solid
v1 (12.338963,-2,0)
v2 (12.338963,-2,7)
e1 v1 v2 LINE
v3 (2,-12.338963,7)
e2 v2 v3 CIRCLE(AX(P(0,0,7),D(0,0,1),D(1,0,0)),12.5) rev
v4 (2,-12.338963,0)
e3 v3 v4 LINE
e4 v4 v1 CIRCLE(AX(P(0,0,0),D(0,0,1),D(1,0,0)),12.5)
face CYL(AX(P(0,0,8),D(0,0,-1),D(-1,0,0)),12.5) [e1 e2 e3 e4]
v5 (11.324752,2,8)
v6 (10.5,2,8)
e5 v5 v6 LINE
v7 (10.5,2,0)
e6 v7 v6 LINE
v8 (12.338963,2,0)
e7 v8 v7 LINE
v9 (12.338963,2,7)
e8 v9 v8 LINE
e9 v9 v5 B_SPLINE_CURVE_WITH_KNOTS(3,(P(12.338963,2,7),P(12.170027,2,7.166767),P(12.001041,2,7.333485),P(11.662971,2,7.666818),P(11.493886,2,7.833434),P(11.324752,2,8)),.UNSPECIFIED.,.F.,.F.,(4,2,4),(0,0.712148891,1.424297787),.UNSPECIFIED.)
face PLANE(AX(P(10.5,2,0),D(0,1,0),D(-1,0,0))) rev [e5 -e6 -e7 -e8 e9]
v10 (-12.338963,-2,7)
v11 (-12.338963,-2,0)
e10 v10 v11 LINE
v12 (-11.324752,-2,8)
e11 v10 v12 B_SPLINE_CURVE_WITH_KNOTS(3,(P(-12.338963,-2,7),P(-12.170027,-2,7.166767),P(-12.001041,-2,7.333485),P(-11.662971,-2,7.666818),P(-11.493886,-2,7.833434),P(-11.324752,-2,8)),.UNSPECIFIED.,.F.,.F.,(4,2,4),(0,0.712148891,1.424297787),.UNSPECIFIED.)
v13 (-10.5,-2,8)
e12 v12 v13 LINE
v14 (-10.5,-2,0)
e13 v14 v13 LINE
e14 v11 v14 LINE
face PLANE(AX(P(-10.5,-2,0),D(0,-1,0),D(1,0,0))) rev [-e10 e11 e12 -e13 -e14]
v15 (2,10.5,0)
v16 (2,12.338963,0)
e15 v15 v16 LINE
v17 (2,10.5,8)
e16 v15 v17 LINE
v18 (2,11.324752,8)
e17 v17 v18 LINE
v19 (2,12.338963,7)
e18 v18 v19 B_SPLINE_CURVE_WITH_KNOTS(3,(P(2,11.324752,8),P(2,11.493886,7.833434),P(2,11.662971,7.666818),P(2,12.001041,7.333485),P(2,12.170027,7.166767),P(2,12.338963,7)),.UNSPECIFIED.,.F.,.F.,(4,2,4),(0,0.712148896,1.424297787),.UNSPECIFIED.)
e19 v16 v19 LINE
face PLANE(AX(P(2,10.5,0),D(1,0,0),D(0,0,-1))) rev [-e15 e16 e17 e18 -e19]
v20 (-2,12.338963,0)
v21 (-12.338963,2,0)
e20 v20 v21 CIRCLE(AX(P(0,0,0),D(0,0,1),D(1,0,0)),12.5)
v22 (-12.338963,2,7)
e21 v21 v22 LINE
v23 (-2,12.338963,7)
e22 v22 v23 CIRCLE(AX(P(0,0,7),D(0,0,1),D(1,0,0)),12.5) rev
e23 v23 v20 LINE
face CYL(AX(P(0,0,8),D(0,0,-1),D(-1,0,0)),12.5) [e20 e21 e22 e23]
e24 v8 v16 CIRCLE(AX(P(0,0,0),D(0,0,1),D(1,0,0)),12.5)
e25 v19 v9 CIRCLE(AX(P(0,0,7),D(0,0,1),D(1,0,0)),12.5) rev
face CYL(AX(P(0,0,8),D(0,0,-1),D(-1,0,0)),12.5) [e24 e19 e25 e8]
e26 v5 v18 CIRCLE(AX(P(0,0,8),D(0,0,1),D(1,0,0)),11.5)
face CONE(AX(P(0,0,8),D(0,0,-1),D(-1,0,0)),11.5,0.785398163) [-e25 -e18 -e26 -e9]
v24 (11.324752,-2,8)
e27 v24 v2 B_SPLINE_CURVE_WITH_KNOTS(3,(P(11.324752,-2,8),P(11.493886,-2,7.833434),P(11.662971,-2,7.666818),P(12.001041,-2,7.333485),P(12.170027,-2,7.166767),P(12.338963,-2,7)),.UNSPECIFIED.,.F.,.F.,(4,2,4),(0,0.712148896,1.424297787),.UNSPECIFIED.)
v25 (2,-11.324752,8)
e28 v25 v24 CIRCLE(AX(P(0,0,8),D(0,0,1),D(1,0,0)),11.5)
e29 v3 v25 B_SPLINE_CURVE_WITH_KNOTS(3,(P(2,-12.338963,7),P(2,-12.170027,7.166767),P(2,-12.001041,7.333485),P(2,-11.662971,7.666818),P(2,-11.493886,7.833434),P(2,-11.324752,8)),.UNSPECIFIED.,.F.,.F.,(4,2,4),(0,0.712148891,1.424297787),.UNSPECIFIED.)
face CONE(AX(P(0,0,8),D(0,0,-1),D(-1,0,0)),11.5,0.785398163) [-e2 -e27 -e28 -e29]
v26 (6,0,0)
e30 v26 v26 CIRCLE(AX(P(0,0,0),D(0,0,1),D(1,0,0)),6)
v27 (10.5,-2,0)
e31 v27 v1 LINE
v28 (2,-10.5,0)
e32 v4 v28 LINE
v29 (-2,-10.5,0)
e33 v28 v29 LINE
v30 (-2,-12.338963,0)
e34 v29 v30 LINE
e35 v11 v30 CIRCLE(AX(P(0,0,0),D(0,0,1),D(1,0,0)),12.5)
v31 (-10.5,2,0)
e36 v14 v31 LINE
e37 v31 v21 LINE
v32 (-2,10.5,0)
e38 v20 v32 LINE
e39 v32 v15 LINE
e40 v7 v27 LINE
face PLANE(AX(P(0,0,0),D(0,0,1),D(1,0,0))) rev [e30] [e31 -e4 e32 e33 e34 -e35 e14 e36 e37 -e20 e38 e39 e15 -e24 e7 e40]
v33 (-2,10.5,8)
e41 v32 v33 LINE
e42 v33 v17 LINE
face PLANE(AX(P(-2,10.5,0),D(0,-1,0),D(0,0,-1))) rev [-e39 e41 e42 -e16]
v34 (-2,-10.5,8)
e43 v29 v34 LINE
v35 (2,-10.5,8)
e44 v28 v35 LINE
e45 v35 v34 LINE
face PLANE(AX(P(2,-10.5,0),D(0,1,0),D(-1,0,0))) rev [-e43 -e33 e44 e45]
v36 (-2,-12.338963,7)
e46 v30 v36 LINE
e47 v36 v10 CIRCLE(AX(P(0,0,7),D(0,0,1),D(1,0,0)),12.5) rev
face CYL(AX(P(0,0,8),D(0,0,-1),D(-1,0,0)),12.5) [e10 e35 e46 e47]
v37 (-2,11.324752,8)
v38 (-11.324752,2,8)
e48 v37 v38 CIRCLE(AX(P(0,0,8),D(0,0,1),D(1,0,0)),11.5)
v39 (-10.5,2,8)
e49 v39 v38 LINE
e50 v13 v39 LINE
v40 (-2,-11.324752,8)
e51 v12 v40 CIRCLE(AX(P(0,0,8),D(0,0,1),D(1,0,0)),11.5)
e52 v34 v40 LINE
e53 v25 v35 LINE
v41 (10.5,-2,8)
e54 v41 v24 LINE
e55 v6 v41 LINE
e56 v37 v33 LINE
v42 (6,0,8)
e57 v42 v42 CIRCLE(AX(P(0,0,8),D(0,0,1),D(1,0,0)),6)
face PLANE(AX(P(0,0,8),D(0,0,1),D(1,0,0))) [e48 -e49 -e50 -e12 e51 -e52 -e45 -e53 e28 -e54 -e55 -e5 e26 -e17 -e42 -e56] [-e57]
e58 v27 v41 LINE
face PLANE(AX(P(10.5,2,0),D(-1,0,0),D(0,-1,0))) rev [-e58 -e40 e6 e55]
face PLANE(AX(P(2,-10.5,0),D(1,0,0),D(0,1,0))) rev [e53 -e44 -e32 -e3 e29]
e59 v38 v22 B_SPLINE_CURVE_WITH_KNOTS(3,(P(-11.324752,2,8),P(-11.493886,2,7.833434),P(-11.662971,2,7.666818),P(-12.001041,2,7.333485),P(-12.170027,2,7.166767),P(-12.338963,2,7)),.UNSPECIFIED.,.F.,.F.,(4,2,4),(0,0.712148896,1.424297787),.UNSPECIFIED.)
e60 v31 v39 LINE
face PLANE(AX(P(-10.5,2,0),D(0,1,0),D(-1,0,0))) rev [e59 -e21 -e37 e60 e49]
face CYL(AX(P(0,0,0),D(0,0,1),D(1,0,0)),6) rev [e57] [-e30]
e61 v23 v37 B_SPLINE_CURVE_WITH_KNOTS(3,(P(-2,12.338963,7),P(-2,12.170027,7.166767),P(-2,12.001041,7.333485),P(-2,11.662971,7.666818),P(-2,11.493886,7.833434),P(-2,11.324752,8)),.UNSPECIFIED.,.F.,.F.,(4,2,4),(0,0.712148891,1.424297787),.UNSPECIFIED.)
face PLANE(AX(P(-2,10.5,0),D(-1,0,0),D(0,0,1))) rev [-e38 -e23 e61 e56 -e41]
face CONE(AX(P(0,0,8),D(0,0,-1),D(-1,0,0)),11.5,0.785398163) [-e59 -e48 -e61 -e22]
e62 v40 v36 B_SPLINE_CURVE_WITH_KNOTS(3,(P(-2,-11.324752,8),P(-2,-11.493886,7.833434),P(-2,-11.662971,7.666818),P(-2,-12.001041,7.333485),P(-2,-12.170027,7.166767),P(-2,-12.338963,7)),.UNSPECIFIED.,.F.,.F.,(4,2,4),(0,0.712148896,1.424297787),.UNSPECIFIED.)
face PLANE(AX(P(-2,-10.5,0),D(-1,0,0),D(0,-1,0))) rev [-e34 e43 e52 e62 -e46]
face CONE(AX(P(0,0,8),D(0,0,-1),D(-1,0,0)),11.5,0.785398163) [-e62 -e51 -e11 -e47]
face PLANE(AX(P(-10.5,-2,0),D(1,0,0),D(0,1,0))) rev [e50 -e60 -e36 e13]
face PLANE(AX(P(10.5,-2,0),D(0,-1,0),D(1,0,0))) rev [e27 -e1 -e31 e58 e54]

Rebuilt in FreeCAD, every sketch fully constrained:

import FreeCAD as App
import Part
import Sketcher
Q = App.Units.Quantity


def edges_at(feature, points):
    """Names of the edges that pass closest to the given points."""
    edges = feature.Shape.Edges
    near = lambda p: min(range(len(edges)), key=lambda i: edges[i].distToShape(Part.Vertex(*p))[0])
    return sorted({f"Edge{near(p) + 1}" for p in points})

doc = App.newDocument("Part")
body = doc.addObject("PartDesign::Body", "Body")

# Sketch on XY plane
sketch1 = body.newObject("Sketcher::SketchObject", "Sketch")
sketch1.AttachmentSupport = (doc.getObject("XY_Plane"), [""])
sketch1.MapMode = "FlatFace"
sketch1.addGeometry(Part.Circle(App.Vector(0, 0, 0), App.Vector(0, 0, 1), 12), False)
sketch1.addConstraint([
    Sketcher.Constraint("Coincident", 0, 3, -1, 1),
    Sketcher.Constraint("Diameter", 0, Q("25 mm")),
])
pad1 = body.newObject("PartDesign::Pad", "Pad")
pad1.Profile = sketch1
pad1.Length = 8

# Sketch on XY plane
sketch2 = body.newObject("Sketcher::SketchObject", "Sketch001")
sketch2.AttachmentSupport = (doc.getObject("XY_Plane"), [""])
sketch2.MapMode = "FlatFace"
sketch2.AttachmentOffset = App.Placement(App.Vector(0, 0, 8), App.Rotation())
sketch2.addGeometry(Part.Circle(App.Vector(0, 0, 0), App.Vector(0, 0, 1), 6), False)
sketch2.addConstraint([
    Sketcher.Constraint("Coincident", 0, 3, -1, 1),
    Sketcher.Constraint("Diameter", 0, Q("12 mm")),
])
pocket1 = body.newObject("PartDesign::Pocket", "Pocket")
pocket1.Profile = sketch2
pocket1.Type = "ThroughAll"

# Sketch on XY plane
sketch3 = body.newObject("Sketcher::SketchObject", "Sketch002")
sketch3.AttachmentSupport = (doc.getObject("XY_Plane"), [""])
sketch3.MapMode = "FlatFace"
sketch3.AttachmentOffset = App.Placement(App.Vector(0, 0, 8), App.Rotation())
sketch3.addGeometry([
    Part.LineSegment(App.Vector(10.5, 2, 0), App.Vector(10.5, -2, 0)),  # 0
    Part.LineSegment(App.Vector(10.5, -2, 0), App.Vector(14.5, -2, 0)),  # 1
    Part.LineSegment(App.Vector(14.5, -2, 0), App.Vector(14.5, 2, 0)),  # 2
    Part.LineSegment(App.Vector(14.5, 2, 0), App.Vector(10.5, 2, 0)),  # 3
    Part.LineSegment(App.Vector(-2, 14.5, 0), App.Vector(-2, 10.5, 0)),  # 4
    Part.LineSegment(App.Vector(-2, 10.5, 0), App.Vector(2, 10.5, 0)),  # 5
    Part.LineSegment(App.Vector(2, 10.5, 0), App.Vector(2, 14.5, 0)),  # 6
    Part.LineSegment(App.Vector(2, 14.5, 0), App.Vector(-2, 14.5, 0)),  # 7
    Part.LineSegment(App.Vector(-2, -10.5, 0), App.Vector(-2, -14.5, 0)),  # 8
    Part.LineSegment(App.Vector(-2, -14.5, 0), App.Vector(2, -14.5, 0)),  # 9
    Part.LineSegment(App.Vector(2, -14.5, 0), App.Vector(2, -10.5, 0)),  # 10
    Part.LineSegment(App.Vector(2, -10.5, 0), App.Vector(-2, -10.5, 0)),  # 11
    Part.LineSegment(App.Vector(-14.5, 2, 0), App.Vector(-14.5, -2, 0)),  # 12
    Part.LineSegment(App.Vector(-14.5, -2, 0), App.Vector(-10.5, -2, 0)),  # 13
    Part.LineSegment(App.Vector(-10.5, -2, 0), App.Vector(-10.5, 2, 0)),  # 14
    Part.LineSegment(App.Vector(-10.5, 2, 0), App.Vector(-14.5, 2, 0)),  # 15
], False)
sketch3.addConstraint([
    Sketcher.Constraint("Coincident", 0, 2, 1, 1),
    Sketcher.Constraint("Coincident", 1, 2, 2, 1),
    Sketcher.Constraint("Coincident", 2, 2, 3, 1),
    Sketcher.Constraint("Coincident", 3, 2, 0, 1),
    Sketcher.Constraint("Coincident", 4, 2, 5, 1),
    Sketcher.Constraint("Coincident", 5, 2, 6, 1),
    Sketcher.Constraint("Coincident", 6, 2, 7, 1),
    Sketcher.Constraint("Coincident", 7, 2, 4, 1),
    Sketcher.Constraint("Coincident", 8, 2, 9, 1),
    Sketcher.Constraint("Coincident", 9, 2, 10, 1),
    Sketcher.Constraint("Coincident", 10, 2, 11, 1),
    Sketcher.Constraint("Coincident", 11, 2, 8, 1),
    Sketcher.Constraint("Coincident", 12, 2, 13, 1),
    Sketcher.Constraint("Coincident", 13, 2, 14, 1),
    Sketcher.Constraint("Coincident", 14, 2, 15, 1),
    Sketcher.Constraint("Coincident", 15, 2, 12, 1),
    Sketcher.Constraint("Vertical", 0),
    Sketcher.Constraint("Horizontal", 1),
    Sketcher.Constraint("Vertical", 2),
    Sketcher.Constraint("Horizontal", 3),
    Sketcher.Constraint("Vertical", 4),
    Sketcher.Constraint("Horizontal", 5),
    Sketcher.Constraint("Vertical", 6),
    Sketcher.Constraint("Horizontal", 7),
    Sketcher.Constraint("Vertical", 8),
    Sketcher.Constraint("Horizontal", 9),
    Sketcher.Constraint("Vertical", 10),
    Sketcher.Constraint("Horizontal", 11),
    Sketcher.Constraint("Vertical", 12),
    Sketcher.Constraint("Horizontal", 13),
    Sketcher.Constraint("Vertical", 14),
    Sketcher.Constraint("Horizontal", 15),
    Sketcher.Constraint("Symmetric", 6, 2, 8, 2, -1, 1),
    Sketcher.Constraint("Symmetric", 4, 2, 10, 2, -1, 1),
    Sketcher.Constraint("Symmetric", 2, 2, 12, 2, -1, 1),
    Sketcher.Constraint("Symmetric", 0, 2, 14, 2, -1, 1),
    Sketcher.Constraint("Horizontal", 1, 2, 12, 2),
    Sketcher.Constraint("Vertical", 7, 2, 8, 2),
    Sketcher.Constraint("Equal", 3, 5),
    Sketcher.Constraint("Equal", 15, 0),
    Sketcher.Constraint("Equal", 2, 4),
    Sketcher.Constraint("DistanceX", 1, 1, 1, 2, Q("4 mm")),
    Sketcher.Constraint("DistanceY", 8, 2, 4, 2, Q("25 mm")),
    Sketcher.Constraint("DistanceX", -1, 1, 0, 2, Q("10.5 mm")),
])
pocket2 = body.newObject("PartDesign::Pocket", "Pocket001")
pocket2.Profile = sketch3
pocket2.Type = "ThroughAll"
doc.recompute()

chamfer = body.newObject("PartDesign::Chamfer", "Chamfer")
chamfer.Base = (pocket2, edges_at(pocket2, [
    (-8.839, 8.839, 8),
    (-8.839, -8.839, 8),
    (8.839, -8.839, 8),
    (8.839, 8.839, 8),
]))
chamfer.Size = 1

doc.recompute()
